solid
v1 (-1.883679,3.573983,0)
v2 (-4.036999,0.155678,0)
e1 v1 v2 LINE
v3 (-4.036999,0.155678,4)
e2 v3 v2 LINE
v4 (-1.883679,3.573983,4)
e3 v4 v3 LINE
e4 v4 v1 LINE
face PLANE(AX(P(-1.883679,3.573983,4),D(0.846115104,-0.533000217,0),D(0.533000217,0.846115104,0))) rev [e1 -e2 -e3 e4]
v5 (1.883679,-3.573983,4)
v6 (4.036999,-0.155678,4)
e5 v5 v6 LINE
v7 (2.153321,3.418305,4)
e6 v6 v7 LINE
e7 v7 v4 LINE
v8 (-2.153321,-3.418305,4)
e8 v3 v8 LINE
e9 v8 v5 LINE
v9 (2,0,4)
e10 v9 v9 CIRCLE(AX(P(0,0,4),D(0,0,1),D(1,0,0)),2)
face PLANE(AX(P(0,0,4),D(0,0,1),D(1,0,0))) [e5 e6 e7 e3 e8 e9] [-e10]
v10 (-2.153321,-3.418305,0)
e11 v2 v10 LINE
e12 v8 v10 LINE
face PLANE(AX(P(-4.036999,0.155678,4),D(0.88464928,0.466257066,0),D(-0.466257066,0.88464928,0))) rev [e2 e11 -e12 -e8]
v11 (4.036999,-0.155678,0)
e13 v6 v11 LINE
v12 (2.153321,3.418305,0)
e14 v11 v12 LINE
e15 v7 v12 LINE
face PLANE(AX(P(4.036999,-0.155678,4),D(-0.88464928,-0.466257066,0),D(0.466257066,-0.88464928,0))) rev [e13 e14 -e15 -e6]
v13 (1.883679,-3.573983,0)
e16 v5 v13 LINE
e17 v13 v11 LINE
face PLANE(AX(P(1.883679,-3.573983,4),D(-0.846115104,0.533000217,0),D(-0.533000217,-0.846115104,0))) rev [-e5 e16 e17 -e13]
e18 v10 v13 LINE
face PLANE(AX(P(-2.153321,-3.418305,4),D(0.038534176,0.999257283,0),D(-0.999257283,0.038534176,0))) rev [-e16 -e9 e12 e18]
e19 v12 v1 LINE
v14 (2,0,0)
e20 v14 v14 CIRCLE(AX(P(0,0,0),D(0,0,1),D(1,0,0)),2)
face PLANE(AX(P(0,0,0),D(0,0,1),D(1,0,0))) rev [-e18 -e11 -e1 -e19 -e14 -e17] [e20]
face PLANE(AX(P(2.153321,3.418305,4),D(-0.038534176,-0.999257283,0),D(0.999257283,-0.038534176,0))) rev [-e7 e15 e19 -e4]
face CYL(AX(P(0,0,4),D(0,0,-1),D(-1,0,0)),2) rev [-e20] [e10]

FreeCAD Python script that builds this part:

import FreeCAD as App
import Part
import Sketcher


def add_polygon(sketch, points):
    """Adds a closed chain of lines whose ends are joined by coincident constraints."""
    first, n = sketch.GeometryCount, len(points)
    for a, b in zip(points, points[1:] + points[:1]):
        sketch.addGeometry(Part.LineSegment(App.Vector(*a, 0), App.Vector(*b, 0)), False)
    for i in range(n):
        sketch.addConstraint(Sketcher.Constraint("Coincident", first + i, 2, first + (i + 1) % n, 1))

doc = App.newDocument("Part")
body = doc.addObject("PartDesign::Body", "Body")

# Sketch on XY plane
sketch1 = doc.addObject("Sketcher::SketchObject", "Sketch")
body.addObject(sketch1)
sketch1.AttachmentSupport = (doc.XY_Plane, [""])
sketch1.MapMode = "FlatFace"
add_polygon(sketch1, [(-2.153321, -3.418305), (1.883679, -3.573983), (4.036999, -0.155678), (2.153321, 3.418305), (-1.883679, 3.573983), (-4.036999, 0.155678)])  # lines 0-5
sketch1.addGeometry(Part.Circle(App.Vector(0, 0, 0), App.Vector(0, 0, 1), 2), False)  # 6
sketch1.addConstraint(Sketcher.Constraint("Coincident", 6, 3, -1, 1))
sketch1.addConstraint(Sketcher.Constraint("Symmetric", 0, 2, 3, 2, -1, 1))
sketch1.addConstraint(Sketcher.Constraint("Symmetric", 1, 2, 4, 2, -1, 1))
sketch1.addConstraint(Sketcher.Constraint("Symmetric", 2, 2, 5, 2, -1, 1))
sketch1.addConstraint(Sketcher.Constraint("Equal", 0, 1))
sketch1.addConstraint(Sketcher.Constraint("Equal", 1, 2))
sketch1.addConstraint(Sketcher.Constraint("Diameter", 6, 4.0))
sketch1.addConstraint(Sketcher.Constraint("Distance", 0, 4.04))
sketch1.addConstraint(Sketcher.Constraint("DistanceX", -1, 1, 1, 2, 4.036999))
sketch1.addConstraint(Sketcher.Constraint("DistanceX", 3, 2, 2, 2, 4.036999))
sketch1.addConstraint(Sketcher.Constraint("DistanceX", -1, 1, 0, 2, 1.883679))
pad1 = doc.addObject("PartDesign::Pad", "Pad")
body.addObject(pad1)
pad1.Profile = sketch1
pad1.Length = 4

doc.recompute()
